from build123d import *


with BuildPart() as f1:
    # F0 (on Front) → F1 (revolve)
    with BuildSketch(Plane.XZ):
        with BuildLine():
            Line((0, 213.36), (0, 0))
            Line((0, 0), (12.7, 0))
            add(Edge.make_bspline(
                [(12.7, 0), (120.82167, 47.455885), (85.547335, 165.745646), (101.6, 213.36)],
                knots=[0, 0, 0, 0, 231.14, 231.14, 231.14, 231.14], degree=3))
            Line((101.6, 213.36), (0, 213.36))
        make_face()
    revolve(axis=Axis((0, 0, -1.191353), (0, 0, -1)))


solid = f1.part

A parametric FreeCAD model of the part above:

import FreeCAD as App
import Part
import Sketcher

doc = App.newDocument("Part")
body = doc.addObject("PartDesign::Body", "Body")

sketch1 = doc.addObject("Sketcher::SketchObject", "Sketch")
body.addObject(sketch1)
sketch1.AttachmentSupport = (doc.XZ_Plane, [""])
sketch1.MapMode = "FlatFace"
sketch1.addGeometry([
    Part.LineSegment(App.Vector(0, 213.36, 0), App.Vector(0, 0, 0)),
    Part.LineSegment(App.Vector(0, 0, 0), App.Vector(12.7, 0, 0)),
    Part.BSplineCurve([App.Vector(12.7, 0, 0), App.Vector(120.82167, 47.455885, 0), App.Vector(85.547335, 165.745646, 0), App.Vector(101.6, 213.36, 0)], [4, 4], [0, 231.14], False, 3, [1, 1, 1, 1], False),
    Part.LineSegment(App.Vector(101.6, 213.36, 0), App.Vector(0, 213.36, 0)),
], False)
sketch1.addConstraint([
    Sketcher.Constraint("Block", 2),
    Sketcher.Constraint("Coincident", 0, 2, 1, 1),
    Sketcher.Constraint("Coincident", 1, 2, 2, 1),
    Sketcher.Constraint("Coincident", 2, 2, 3, 1),
    Sketcher.Constraint("Coincident", 3, 2, 0, 1),
    Sketcher.Constraint("Vertical", 0),
    Sketcher.Constraint("Horizontal", 1),
    Sketcher.Constraint("Horizontal", 3),
    Sketcher.Constraint("PointOnObject", 3, 2, -2),
])
revolution = doc.addObject("PartDesign::Revolution", "Revolution")
body.addObject(revolution)
revolution.Profile = sketch1
revolution.ReferenceAxis = (sketch1, ["V_Axis"])
revolution.Angle = 360

doc.recompute()
